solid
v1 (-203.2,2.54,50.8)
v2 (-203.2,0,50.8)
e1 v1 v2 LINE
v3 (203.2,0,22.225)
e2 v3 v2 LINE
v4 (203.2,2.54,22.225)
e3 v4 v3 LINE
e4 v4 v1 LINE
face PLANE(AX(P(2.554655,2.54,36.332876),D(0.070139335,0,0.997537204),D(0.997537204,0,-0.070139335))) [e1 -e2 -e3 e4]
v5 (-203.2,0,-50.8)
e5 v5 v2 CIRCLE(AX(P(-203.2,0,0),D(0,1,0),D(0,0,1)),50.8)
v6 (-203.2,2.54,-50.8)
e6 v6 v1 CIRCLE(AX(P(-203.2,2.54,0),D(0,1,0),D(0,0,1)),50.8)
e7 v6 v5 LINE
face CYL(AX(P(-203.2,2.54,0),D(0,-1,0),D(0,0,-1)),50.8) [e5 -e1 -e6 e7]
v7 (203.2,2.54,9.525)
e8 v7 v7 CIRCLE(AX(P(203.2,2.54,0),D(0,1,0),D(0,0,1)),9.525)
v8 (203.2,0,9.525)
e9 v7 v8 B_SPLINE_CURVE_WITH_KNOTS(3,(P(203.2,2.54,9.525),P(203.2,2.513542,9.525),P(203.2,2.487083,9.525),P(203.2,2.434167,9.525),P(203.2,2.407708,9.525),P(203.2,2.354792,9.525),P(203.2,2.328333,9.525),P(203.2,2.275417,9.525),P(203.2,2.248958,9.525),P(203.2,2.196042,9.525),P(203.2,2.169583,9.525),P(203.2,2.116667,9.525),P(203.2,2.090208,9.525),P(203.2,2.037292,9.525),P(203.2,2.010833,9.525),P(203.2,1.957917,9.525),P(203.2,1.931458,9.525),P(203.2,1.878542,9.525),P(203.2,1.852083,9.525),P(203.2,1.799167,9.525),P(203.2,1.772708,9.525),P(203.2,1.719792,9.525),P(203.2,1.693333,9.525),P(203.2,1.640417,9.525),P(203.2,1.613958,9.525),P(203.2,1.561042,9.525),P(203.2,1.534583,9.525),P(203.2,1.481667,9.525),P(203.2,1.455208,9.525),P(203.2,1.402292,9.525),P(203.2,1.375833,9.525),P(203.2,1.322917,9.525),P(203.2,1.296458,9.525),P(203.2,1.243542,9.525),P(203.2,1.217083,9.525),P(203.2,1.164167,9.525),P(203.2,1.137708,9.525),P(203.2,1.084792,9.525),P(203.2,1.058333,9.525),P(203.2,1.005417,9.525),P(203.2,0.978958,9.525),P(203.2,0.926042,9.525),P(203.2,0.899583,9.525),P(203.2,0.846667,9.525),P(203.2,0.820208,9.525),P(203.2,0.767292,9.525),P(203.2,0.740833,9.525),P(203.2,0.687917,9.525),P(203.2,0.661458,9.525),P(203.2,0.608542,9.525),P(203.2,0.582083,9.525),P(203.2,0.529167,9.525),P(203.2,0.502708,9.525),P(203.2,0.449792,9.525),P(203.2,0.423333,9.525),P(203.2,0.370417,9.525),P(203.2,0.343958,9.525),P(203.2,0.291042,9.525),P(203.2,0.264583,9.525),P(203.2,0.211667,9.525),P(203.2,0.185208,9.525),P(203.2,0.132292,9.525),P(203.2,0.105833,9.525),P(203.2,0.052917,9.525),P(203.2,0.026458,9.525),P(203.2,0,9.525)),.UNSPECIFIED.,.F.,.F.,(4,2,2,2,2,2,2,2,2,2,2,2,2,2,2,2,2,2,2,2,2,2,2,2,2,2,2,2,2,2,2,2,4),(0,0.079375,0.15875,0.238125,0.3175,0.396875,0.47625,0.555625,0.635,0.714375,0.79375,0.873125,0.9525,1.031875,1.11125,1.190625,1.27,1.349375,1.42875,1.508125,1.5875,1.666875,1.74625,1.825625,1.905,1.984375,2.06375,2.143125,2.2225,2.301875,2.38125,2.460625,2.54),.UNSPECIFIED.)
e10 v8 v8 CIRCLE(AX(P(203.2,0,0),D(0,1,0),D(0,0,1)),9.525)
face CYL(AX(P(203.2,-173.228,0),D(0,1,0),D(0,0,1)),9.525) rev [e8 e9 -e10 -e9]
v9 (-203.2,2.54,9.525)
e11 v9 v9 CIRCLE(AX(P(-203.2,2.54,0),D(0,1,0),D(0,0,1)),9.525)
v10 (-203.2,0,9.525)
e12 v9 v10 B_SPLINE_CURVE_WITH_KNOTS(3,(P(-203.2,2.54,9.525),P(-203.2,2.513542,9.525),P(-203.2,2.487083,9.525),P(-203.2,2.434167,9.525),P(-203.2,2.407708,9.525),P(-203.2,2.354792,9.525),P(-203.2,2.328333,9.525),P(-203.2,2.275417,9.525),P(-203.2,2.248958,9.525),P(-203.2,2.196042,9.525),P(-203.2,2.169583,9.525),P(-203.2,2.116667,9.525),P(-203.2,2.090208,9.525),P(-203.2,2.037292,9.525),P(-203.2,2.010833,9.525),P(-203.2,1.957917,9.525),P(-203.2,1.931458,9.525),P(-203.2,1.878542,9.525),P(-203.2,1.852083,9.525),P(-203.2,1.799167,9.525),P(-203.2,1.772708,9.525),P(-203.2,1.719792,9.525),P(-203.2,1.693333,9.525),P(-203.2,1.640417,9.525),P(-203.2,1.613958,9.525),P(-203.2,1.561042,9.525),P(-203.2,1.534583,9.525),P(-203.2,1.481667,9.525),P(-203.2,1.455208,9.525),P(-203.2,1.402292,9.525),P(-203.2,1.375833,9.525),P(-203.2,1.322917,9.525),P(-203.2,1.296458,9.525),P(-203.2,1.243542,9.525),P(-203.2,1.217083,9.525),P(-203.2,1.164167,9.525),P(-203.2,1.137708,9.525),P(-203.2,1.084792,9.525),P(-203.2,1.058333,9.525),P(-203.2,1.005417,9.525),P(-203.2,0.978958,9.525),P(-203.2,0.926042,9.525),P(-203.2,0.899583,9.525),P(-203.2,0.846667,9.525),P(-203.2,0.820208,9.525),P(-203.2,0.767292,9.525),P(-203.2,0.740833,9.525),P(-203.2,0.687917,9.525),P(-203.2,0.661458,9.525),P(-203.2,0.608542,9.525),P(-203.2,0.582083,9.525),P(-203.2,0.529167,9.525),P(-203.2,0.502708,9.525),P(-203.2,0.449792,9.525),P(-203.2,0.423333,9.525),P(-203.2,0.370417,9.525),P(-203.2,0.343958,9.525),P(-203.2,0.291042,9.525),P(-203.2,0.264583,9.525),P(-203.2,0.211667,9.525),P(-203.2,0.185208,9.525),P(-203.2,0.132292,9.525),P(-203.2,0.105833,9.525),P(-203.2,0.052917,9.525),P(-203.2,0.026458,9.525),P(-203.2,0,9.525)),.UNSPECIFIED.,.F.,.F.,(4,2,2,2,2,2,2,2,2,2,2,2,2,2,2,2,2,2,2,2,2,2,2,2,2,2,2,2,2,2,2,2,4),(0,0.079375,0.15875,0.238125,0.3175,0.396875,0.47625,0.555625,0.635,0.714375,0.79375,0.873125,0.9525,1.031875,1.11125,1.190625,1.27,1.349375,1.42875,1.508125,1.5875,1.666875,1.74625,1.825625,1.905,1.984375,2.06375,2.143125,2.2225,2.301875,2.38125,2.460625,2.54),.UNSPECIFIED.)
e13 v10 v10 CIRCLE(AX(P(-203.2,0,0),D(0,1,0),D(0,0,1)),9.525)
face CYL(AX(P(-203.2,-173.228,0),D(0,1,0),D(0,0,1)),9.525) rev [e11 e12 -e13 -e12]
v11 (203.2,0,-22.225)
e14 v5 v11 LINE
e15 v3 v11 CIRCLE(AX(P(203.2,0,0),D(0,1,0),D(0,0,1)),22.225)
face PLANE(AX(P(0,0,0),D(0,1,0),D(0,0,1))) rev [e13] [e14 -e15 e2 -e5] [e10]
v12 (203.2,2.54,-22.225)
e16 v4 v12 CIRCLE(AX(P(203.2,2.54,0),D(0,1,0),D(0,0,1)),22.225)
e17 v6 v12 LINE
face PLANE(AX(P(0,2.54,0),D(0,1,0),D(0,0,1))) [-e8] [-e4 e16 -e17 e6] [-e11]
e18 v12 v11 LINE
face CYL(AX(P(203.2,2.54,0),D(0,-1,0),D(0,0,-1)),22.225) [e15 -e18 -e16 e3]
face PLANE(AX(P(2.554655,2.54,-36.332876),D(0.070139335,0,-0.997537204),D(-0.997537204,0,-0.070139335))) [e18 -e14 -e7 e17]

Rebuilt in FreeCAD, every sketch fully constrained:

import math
import FreeCAD as App
import Part
import Sketcher
Q = App.Units.Quantity

doc = App.newDocument("Part")
body = doc.addObject("PartDesign::Body", "Body")

# Sketch on XZ plane
sketch1 = body.newObject("Sketcher::SketchObject", "Sketch")
sketch1.AttachmentSupport = (doc.getObject("XZ_Plane"), [""])
sketch1.MapMode = "FlatFace"
sketch1.addGeometry(Part.LineSegment(App.Vector(203, -22, 0), App.Vector(-203, -51, 0)), False)
sketch1.addGeometry(Part.ArcOfCircle(Part.Circle(App.Vector(-203, 0, 0), App.Vector(0, 0, 1), 51), math.radians(90), math.radians(270)), False)
sketch1.addGeometry(Part.LineSegment(App.Vector(-203, 51, 0), App.Vector(203, 22, 0)), False)
sketch1.addGeometry(Part.ArcOfCircle(Part.Circle(App.Vector(203, 0, 0), App.Vector(0, 0, 1), 22), math.radians(-90), math.radians(90)), False)
sketch1.addConstraint(Sketcher.Constraint("Coincident", 0, 2, 1, 2))
sketch1.addConstraint(Sketcher.Constraint("Coincident", 1, 1, 2, 1))
sketch1.addConstraint(Sketcher.Constraint("Coincident", 2, 2, 3, 2))
sketch1.addConstraint(Sketcher.Constraint("Coincident", 3, 1, 0, 1))
sketch1.addConstraint(Sketcher.Constraint("Symmetric", 1, 3, 3, 3, -1, 1))
sketch1.addConstraint(Sketcher.Constraint("Symmetric", 0, 2, 1, 1, -1))
sketch1.addConstraint(Sketcher.Constraint("Vertical", 1, 3, 0, 2))
sketch1.addConstraint(Sketcher.Constraint("Vertical", 3, 3, 2, 2))
sketch1.addConstraint(Sketcher.Constraint("Vertical", 2, 2, 3, 1))
sketch1.addConstraint(Sketcher.Constraint("Radius", 1, Q("2 in")))
sketch1.addConstraint(Sketcher.Constraint("DistanceX", 1, 3, -1, 1, Q("8 in")))
sketch1.addConstraint(Sketcher.Constraint("Radius", 3, Q("0.875 in")))
pad1 = body.newObject("PartDesign::Pad", "Pad")
pad1.Profile = sketch1
pad1.Length = Q("0.1 in")
pad1.Reversed = True

# Sketch on XZ plane
sketch2 = body.newObject("Sketcher::SketchObject", "Sketch001")
sketch2.AttachmentSupport = (doc.getObject("XZ_Plane"), [""])
sketch2.MapMode = "FlatFace"
sketch2.AttachmentOffset = App.Placement(App.Vector(0, 0, -0.1 * 25.4), App.Rotation())
sketch2.addGeometry(Part.Circle(App.Vector(-203, 0, 0), App.Vector(0, 0, 1), 10), False)
sketch2.addGeometry(Part.Circle(App.Vector(203, 0, 0), App.Vector(0, 0, 1), 10), False)
sketch2.addConstraint(Sketcher.Constraint("Equal", 0, 1))
sketch2.addConstraint(Sketcher.Constraint("Symmetric", 0, 3, 1, 3, -1, 1))
sketch2.addConstraint(Sketcher.Constraint("PointOnObject", 0, 3, -1))
sketch2.addConstraint(Sketcher.Constraint("Diameter", 0, Q("0.75 in")))
sketch2.addConstraint(Sketcher.Constraint("DistanceX", 0, 3, -1, 1, Q("8 in")))
pocket1 = body.newObject("PartDesign::Pocket", "Pocket")
pocket1.Profile = sketch2
pocket1.Length = Q("6.92 in")
pocket1.Reversed = True

doc.recompute()
